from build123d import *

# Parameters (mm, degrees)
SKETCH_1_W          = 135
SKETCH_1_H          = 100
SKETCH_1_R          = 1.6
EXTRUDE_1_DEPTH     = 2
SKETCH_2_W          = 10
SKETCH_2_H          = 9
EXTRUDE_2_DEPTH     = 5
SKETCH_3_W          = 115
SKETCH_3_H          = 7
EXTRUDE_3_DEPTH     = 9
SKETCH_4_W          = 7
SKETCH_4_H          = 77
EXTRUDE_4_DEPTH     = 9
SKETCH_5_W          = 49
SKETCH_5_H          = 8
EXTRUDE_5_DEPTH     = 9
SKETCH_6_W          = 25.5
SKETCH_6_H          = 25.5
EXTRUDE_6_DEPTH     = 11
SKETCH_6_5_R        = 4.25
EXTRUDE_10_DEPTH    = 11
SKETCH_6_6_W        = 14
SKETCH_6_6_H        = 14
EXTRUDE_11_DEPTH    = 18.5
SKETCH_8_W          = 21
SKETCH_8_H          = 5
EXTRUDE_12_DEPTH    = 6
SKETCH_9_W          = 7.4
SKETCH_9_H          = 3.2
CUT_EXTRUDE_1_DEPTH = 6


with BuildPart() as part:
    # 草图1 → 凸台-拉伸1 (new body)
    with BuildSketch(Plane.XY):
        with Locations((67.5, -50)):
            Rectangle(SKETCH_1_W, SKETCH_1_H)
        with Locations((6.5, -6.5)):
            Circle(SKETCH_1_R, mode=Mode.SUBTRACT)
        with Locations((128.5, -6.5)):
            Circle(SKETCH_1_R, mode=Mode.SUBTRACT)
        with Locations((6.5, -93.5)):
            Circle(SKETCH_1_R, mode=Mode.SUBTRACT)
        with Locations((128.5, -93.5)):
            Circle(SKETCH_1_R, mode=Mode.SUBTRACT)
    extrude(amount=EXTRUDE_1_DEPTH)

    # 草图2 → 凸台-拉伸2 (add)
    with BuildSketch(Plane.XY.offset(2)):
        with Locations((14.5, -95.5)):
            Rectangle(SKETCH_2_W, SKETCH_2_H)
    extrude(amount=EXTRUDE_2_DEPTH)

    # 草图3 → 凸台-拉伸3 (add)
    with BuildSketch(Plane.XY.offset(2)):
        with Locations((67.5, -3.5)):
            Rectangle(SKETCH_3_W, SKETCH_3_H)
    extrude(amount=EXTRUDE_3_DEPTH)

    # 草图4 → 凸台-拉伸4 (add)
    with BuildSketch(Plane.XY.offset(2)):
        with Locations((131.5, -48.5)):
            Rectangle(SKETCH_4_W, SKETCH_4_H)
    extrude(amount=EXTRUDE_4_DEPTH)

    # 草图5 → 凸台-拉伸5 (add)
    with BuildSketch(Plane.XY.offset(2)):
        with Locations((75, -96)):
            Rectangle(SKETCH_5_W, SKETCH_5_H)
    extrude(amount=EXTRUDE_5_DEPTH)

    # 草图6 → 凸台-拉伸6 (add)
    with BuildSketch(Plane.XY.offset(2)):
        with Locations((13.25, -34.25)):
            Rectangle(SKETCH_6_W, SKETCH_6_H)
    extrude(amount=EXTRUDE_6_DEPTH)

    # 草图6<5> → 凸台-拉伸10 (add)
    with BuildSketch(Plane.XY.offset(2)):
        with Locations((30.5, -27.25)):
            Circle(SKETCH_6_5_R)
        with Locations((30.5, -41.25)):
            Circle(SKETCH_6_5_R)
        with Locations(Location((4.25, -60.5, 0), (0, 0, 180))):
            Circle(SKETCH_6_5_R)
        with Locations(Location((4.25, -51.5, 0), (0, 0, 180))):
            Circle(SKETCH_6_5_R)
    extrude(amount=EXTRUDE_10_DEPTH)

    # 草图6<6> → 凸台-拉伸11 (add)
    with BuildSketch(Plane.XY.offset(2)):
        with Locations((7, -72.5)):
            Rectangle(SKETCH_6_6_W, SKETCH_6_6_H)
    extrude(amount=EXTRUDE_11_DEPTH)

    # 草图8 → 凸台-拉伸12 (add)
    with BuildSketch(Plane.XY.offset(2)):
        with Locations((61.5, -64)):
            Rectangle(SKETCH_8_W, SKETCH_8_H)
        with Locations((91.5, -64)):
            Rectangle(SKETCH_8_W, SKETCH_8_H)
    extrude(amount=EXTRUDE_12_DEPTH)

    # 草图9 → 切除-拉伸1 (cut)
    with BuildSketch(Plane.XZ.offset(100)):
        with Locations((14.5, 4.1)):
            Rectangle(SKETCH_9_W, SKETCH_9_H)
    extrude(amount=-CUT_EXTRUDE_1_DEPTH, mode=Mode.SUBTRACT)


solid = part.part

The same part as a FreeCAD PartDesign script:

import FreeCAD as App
import Part
import Sketcher

V = App.Vector

doc = App.newDocument("Part")
body = doc.addObject("PartDesign::Body", "Body")

# Sketch on XY plane
sketch1 = body.newObject("Sketcher::SketchObject", "Sketch")
sketch1.AttachmentSupport = (doc.getObject("XY_Plane"), [""])
sketch1.MapMode = "FlatFace"
sketch1.addGeometry([
    Part.LineSegment(V(0, 0, 0), V(0, -100, 0)),  # 0
    Part.LineSegment(V(0, -100, 0), V(135, -100, 0)),  # 1
    Part.LineSegment(V(135, -100, 0), V(135, 0, 0)),  # 2
    Part.LineSegment(V(135, 0, 0), V(0, 0, 0)),  # 3
    Part.Circle(V(6.5, -93.5, 0), V(0, 0, 1), 1.6),  # 4
    Part.Circle(V(128.5, -93.5, 0), V(0, 0, 1), 1.6),  # 5
    Part.Circle(V(6.5, -6.5, 0), V(0, 0, 1), 1.6),  # 6
    Part.Circle(V(128.5, -6.5, 0), V(0, 0, 1), 1.6),  # 7
], False)
sketch1.addConstraint([
    Sketcher.Constraint("Coincident", 0, 2, 1, 1),
    Sketcher.Constraint("Coincident", 1, 2, 2, 1),
    Sketcher.Constraint("Coincident", 2, 2, 3, 1),
    Sketcher.Constraint("Coincident", 3, 2, 0, 1),
    Sketcher.Constraint("Vertical", 0),
    Sketcher.Constraint("Horizontal", 1),
    Sketcher.Constraint("Vertical", 2),
    Sketcher.Constraint("Horizontal", 3),
    Sketcher.Constraint("Coincident", 3, 2, -1, 1),
    Sketcher.Constraint("Equal", 4, 5),
    Sketcher.Constraint("Equal", 5, 6),
    Sketcher.Constraint("Equal", 6, 7),
    Sketcher.Constraint("Horizontal", 4, 3, 5, 3),
    Sketcher.Constraint("Horizontal", 6, 3, 7, 3),
    Sketcher.Constraint("Vertical", 4, 3, 6, 3),
    Sketcher.Constraint("Vertical", 5, 3, 7, 3),
    Sketcher.Constraint("Diameter", 4, 3.2),
    Sketcher.Constraint("DistanceX", 1, 1, 1, 2, 135.0),
    Sketcher.Constraint("DistanceY", 0, 2, 0, 1, 100.0),
    Sketcher.Constraint("DistanceX", 4, 3, 5, 3, 122.0),
    Sketcher.Constraint("DistanceY", 4, 3, 6, 3, 87.0),
    Sketcher.Constraint("DistanceX", -1, 1, 4, 3, 6.5),
    Sketcher.Constraint("DistanceY", 4, 3, -1, 1, 93.5),
])
pad1 = body.newObject("PartDesign::Pad", "Pad")
pad1.Profile = sketch1
pad1.Length = 2

# Sketch on XY plane
sketch2 = body.newObject("Sketcher::SketchObject", "Sketch001")
sketch2.AttachmentSupport = (doc.getObject("XY_Plane"), [""])
sketch2.MapMode = "FlatFace"
sketch2.AttachmentOffset = App.Placement(V(0, 0, 2), App.Rotation())
sketch2.addGeometry([
    Part.LineSegment(V(10, -91, 0), V(10, -100, 0)),
    Part.LineSegment(V(10, -100, 0), V(20, -100, 0)),
    Part.LineSegment(V(20, -100, 0), V(20, -91, 0)),
    Part.LineSegment(V(20, -91, 0), V(10, -91, 0)),
], False)
sketch2.addConstraint([
    Sketcher.Constraint("Coincident", 0, 2, 1, 1),
    Sketcher.Constraint("Coincident", 1, 2, 2, 1),
    Sketcher.Constraint("Coincident", 2, 2, 3, 1),
    Sketcher.Constraint("Coincident", 3, 2, 0, 1),
    Sketcher.Constraint("Vertical", 0),
    Sketcher.Constraint("Horizontal", 1),
    Sketcher.Constraint("Vertical", 2),
    Sketcher.Constraint("Horizontal", 3),
    Sketcher.Constraint("DistanceX", 1, 1, 1, 2, 10.0),
    Sketcher.Constraint("DistanceY", 0, 2, 0, 1, 9.0),
    Sketcher.Constraint("DistanceY", 0, 2, -1, 1, 100.0),
    Sketcher.Constraint("DistanceX", -1, 1, 0, 2, 9.5),
])
pad2 = body.newObject("PartDesign::Pad", "Pad001")
pad2.Profile = sketch2
pad2.Length = 5

# Sketch on XY plane
sketch3 = body.newObject("Sketcher::SketchObject", "Sketch002")
sketch3.AttachmentSupport = (doc.getObject("XY_Plane"), [""])
sketch3.MapMode = "FlatFace"
sketch3.AttachmentOffset = App.Placement(V(0, 0, 2), App.Rotation())
sketch3.addGeometry([
    Part.LineSegment(V(10, 0, 0), V(10, -7, 0)),
    Part.LineSegment(V(10, -7, 0), V(125, -7, 0)),
    Part.LineSegment(V(125, -7, 0), V(125, 0, 0)),
    Part.LineSegment(V(125, 0, 0), V(10, 0, 0)),
], False)
sketch3.addConstraint([
    Sketcher.Constraint("Coincident", 0, 2, 1, 1),
    Sketcher.Constraint("Coincident", 1, 2, 2, 1),
    Sketcher.Constraint("Coincident", 2, 2, 3, 1),
    Sketcher.Constraint("Coincident", 3, 2, 0, 1),
    Sketcher.Constraint("Vertical", 0),
    Sketcher.Constraint("Horizontal", 1),
    Sketcher.Constraint("Vertical", 2),
    Sketcher.Constraint("Horizontal", 3),
    Sketcher.Constraint("PointOnObject", 2, 2, -1),
    Sketcher.Constraint("DistanceX", 1, 1, 1, 2, 115.0),
    Sketcher.Constraint("DistanceY", 0, 2, 0, 1, 7.0),
    Sketcher.Constraint("DistanceX", -1, 1, 0, 2, 10.0),
])
pad3 = body.newObject("PartDesign::Pad", "Pad002")
pad3.Profile = sketch3
pad3.Length = 9

# Sketch on XY plane
sketch4 = body.newObject("Sketcher::SketchObject", "Sketch003")
sketch4.AttachmentSupport = (doc.getObject("XY_Plane"), [""])
sketch4.MapMode = "FlatFace"
sketch4.AttachmentOffset = App.Placement(V(0, 0, 2), App.Rotation())
sketch4.addGeometry([
    Part.LineSegment(V(128, -10, 0), V(128, -87, 0)),
    Part.LineSegment(V(128, -87, 0), V(135, -87, 0)),
    Part.LineSegment(V(135, -87, 0), V(135, -10, 0)),
    Part.LineSegment(V(135, -10, 0), V(128, -10, 0)),
], False)
sketch4.addConstraint([
    Sketcher.Constraint("Coincident", 0, 2, 1, 1),
    Sketcher.Constraint("Coincident", 1, 2, 2, 1),
    Sketcher.Constraint("Coincident", 2, 2, 3, 1),
    Sketcher.Constraint("Coincident", 3, 2, 0, 1),
    Sketcher.Constraint("Vertical", 0),
    Sketcher.Constraint("Horizontal", 1),
    Sketcher.Constraint("Vertical", 2),
    Sketcher.Constraint("Horizontal", 3),
    Sketcher.Constraint("DistanceX", 1, 1, 1, 2, 7.0),
    Sketcher.Constraint("DistanceY", 0, 2, 0, 1, 77.0),
    Sketcher.Constraint("DistanceX", -1, 1, 0, 2, 128.0),
    Sketcher.Constraint("DistanceY", 0, 2, -1, 1, 87.0),
])
pad4 = body.newObject("PartDesign::Pad", "Pad003")
pad4.Profile = sketch4
pad4.Length = 9

# Sketch on XY plane
sketch5 = body.newObject("Sketcher::SketchObject", "Sketch004")
sketch5.AttachmentSupport = (doc.getObject("XY_Plane"), [""])
sketch5.MapMode = "FlatFace"
sketch5.AttachmentOffset = App.Placement(V(0, 0, 2), App.Rotation())
sketch5.addGeometry([
    Part.LineSegment(V(50, -92, 0), V(50, -100, 0)),
    Part.LineSegment(V(50, -100, 0), V(100, -100, 0)),
    Part.LineSegment(V(100, -100, 0), V(100, -92, 0)),
    Part.LineSegment(V(100, -92, 0), V(50, -92, 0)),
], False)
sketch5.addConstraint([
    Sketcher.Constraint("Coincident", 0, 2, 1, 1),
    Sketcher.Constraint("Coincident", 1, 2, 2, 1),
    Sketcher.Constraint("Coincident", 2, 2, 3, 1),
    Sketcher.Constraint("Coincident", 3, 2, 0, 1),
    Sketcher.Constraint("Vertical", 0),
    Sketcher.Constraint("Horizontal", 1),
    Sketcher.Constraint("Vertical", 2),
    Sketcher.Constraint("Horizontal", 3),
    Sketcher.Constraint("DistanceX", 1, 1, 1, 2, 49.0),
    Sketcher.Constraint("DistanceY", 0, 2, 0, 1, 8.0),
    Sketcher.Constraint("DistanceY", 0, 2, -1, 1, 100.0),
    Sketcher.Constraint("DistanceX", -1, 1, 0, 2, 50.5),
])
pad5 = body.newObject("PartDesign::Pad", "Pad004")
pad5.Profile = sketch5
pad5.Length = 9

# Sketch on XY plane
sketch6 = body.newObject("Sketcher::SketchObject", "Sketch005")
sketch6.AttachmentSupport = (doc.getObject("XY_Plane"), [""])
sketch6.MapMode = "FlatFace"
sketch6.AttachmentOffset = App.Placement(V(0, 0, 2), App.Rotation())
sketch6.addGeometry([
    Part.LineSegment(V(0, -22, 0), V(0, -47, 0)),
    Part.LineSegment(V(0, -47, 0), V(26, -47, 0)),
    Part.LineSegment(V(26, -47, 0), V(26, -22, 0)),
    Part.LineSegment(V(26, -22, 0), V(0, -22, 0)),
], False)
sketch6.addConstraint([
    Sketcher.Constraint("Coincident", 0, 2, 1, 1),
    Sketcher.Constraint("Coincident", 1, 2, 2, 1),
    Sketcher.Constraint("Coincident", 2, 2, 3, 1),
    Sketcher.Constraint("Coincident", 3, 2, 0, 1),
    Sketcher.Constraint("Vertical", 0),
    Sketcher.Constraint("Horizontal", 1),
    Sketcher.Constraint("Vertical", 2),
    Sketcher.Constraint("Horizontal", 3),
    Sketcher.Constraint("Equal", 3, 0),
    Sketcher.Constraint("DistanceX", 1, 1, 1, 2, 25.5),
    Sketcher.Constraint("DistanceY", 0, 2, -1, 1, 47.0),
    Sketcher.Constraint("DistanceX", -1, 1, 1, 2, 26.0),
])
pad6 = body.newObject("PartDesign::Pad", "Pad005")
pad6.Profile = sketch6
pad6.Length = 11

# Sketch on XY plane
sketch7 = body.newObject("Sketcher::SketchObject", "Sketch006")
sketch7.AttachmentSupport = (doc.getObject("XY_Plane"), [""])
sketch7.MapMode = "FlatFace"
sketch7.AttachmentOffset = App.Placement(V(0, 0, 2), App.Rotation())
sketch7.addGeometry([
    Part.Circle(V(30.5, -27.2, 0), V(0, 0, 1), 4.2),
    Part.Circle(V(30.5, -41.2, 0), V(0, 0, 1), 4.2),
    Part.Circle(V(4.2, -60.5, 0), V(0, 0, 1), 4.2),
    Part.Circle(V(4.2, -51.5, 0), V(0, 0, 1), 4.2),
], False)
sketch7.addConstraint([
    Sketcher.Constraint("Equal", 0, 1),
    Sketcher.Constraint("Equal", 1, 2),
    Sketcher.Constraint("Equal", 2, 3),
    Sketcher.Constraint("Vertical", 0, 3, 1, 3),
    Sketcher.Constraint("Vertical", 2, 3, 3, 3),
    Sketcher.Constraint("Diameter", 0, 8.5),
    Sketcher.Constraint("DistanceY", 1, 3, 0, 3, 14.0),
    Sketcher.Constraint("DistanceY", 2, 3, 3, 3, 9.0),
    Sketcher.Constraint("DistanceX", -1, 1, 0, 3, 30.5),
    Sketcher.Constraint("DistanceY", 2, 3, -1, 1, 60.5),
    Sketcher.Constraint("DistanceY", 0, 3, -1, 1, 27.25),
    Sketcher.Constraint("DistanceX", -1, 1, 2, 3, 4.25),
])
pad7 = body.newObject("PartDesign::Pad", "Pad006")
pad7.Profile = sketch7
pad7.Length = 11

# Sketch on XY plane
sketch8 = body.newObject("Sketcher::SketchObject", "Sketch007")
sketch8.AttachmentSupport = (doc.getObject("XY_Plane"), [""])
sketch8.MapMode = "FlatFace"
sketch8.AttachmentOffset = App.Placement(V(0, 0, 2), App.Rotation())
sketch8.addGeometry([
    Part.LineSegment(V(0, -66, 0), V(0, -80, 0)),
    Part.LineSegment(V(0, -80, 0), V(14, -80, 0)),
    Part.LineSegment(V(14, -80, 0), V(14, -66, 0)),
    Part.LineSegment(V(14, -66, 0), V(0, -66, 0)),
], False)
sketch8.addConstraint([
    Sketcher.Constraint("Coincident", 0, 2, 1, 1),
    Sketcher.Constraint("Coincident", 1, 2, 2, 1),
    Sketcher.Constraint("Coincident", 2, 2, 3, 1),
    Sketcher.Constraint("Coincident", 3, 2, 0, 1),
    Sketcher.Constraint("Vertical", 0),
    Sketcher.Constraint("Horizontal", 1),
    Sketcher.Constraint("Vertical", 2),
    Sketcher.Constraint("Horizontal", 3),
    Sketcher.Constraint("PointOnObject", 0, 2, -2),
    Sketcher.Constraint("Equal", 3, 0),
    Sketcher.Constraint("DistanceX", 1, 1, 1, 2, 14.0),
    Sketcher.Constraint("DistanceY", 0, 2, -1, 1, 79.5),
])
pad8 = body.newObject("PartDesign::Pad", "Pad007")
pad8.Profile = sketch8
pad8.Length = 18.5

# Sketch on XY plane
sketch9 = body.newObject("Sketcher::SketchObject", "Sketch008")
sketch9.AttachmentSupport = (doc.getObject("XY_Plane"), [""])
sketch9.MapMode = "FlatFace"
sketch9.AttachmentOffset = App.Placement(V(0, 0, 2), App.Rotation())
sketch9.addGeometry([
    Part.LineSegment(V(51, -62, 0), V(51, -66, 0)),  # 0
    Part.LineSegment(V(51, -66, 0), V(72, -66, 0)),  # 1
    Part.LineSegment(V(72, -66, 0), V(72, -62, 0)),  # 2
    Part.LineSegment(V(72, -62, 0), V(51, -62, 0)),  # 3
    Part.LineSegment(V(81, -62, 0), V(81, -66, 0)),  # 4
    Part.LineSegment(V(81, -66, 0), V(102, -66, 0)),  # 5
    Part.LineSegment(V(102, -66, 0), V(102, -62, 0)),  # 6
    Part.LineSegment(V(102, -62, 0), V(81, -62, 0)),  # 7
], False)
sketch9.addConstraint([
    Sketcher.Constraint("Coincident", 0, 2, 1, 1),
    Sketcher.Constraint("Coincident", 1, 2, 2, 1),
    Sketcher.Constraint("Coincident", 2, 2, 3, 1),
    Sketcher.Constraint("Coincident", 3, 2, 0, 1),
    Sketcher.Constraint("Coincident", 4, 2, 5, 1),
    Sketcher.Constraint("Coincident", 5, 2, 6, 1),
    Sketcher.Constraint("Coincident", 6, 2, 7, 1),
    Sketcher.Constraint("Coincident", 7, 2, 4, 1),
    Sketcher.Constraint("Vertical", 0),
    Sketcher.Constraint("Horizontal", 1),
    Sketcher.Constraint("Vertical", 2),
    Sketcher.Constraint("Horizontal", 3),
    Sketcher.Constraint("Vertical", 4),
    Sketcher.Constraint("Horizontal", 5),
    Sketcher.Constraint("Vertical", 6),
    Sketcher.Constraint("Horizontal", 7),
    Sketcher.Constraint("Horizontal", 1, 2, 4, 2),
    Sketcher.Constraint("Horizontal", 3, 2, 6, 2),
    Sketcher.Constraint("Equal", 3, 5),
    Sketcher.Constraint("DistanceX", 1, 1, 1, 2, 21.0),
    Sketcher.Constraint("DistanceY", 0, 2, 0, 1, 5.0),
    Sketcher.Constraint("DistanceX", -1, 1, 0, 2, 51.0),
    Sketcher.Constraint("DistanceX", -1, 1, 4, 2, 81.0),
    Sketcher.Constraint("DistanceY", 0, 2, -1, 1, 66.5),
])
pad9 = body.newObject("PartDesign::Pad", "Pad008")
pad9.Profile = sketch9
pad9.Length = 6

# Sketch on XZ plane
sketch10 = body.newObject("Sketcher::SketchObject", "Sketch009")
sketch10.AttachmentSupport = (doc.getObject("XZ_Plane"), [""])
sketch10.MapMode = "FlatFace"
sketch10.AttachmentOffset = App.Placement(V(0, 0, 100), App.Rotation())
sketch10.addGeometry([
    Part.LineSegment(V(10.8, 5.7, 0), V(10.8, 2.5, 0)),
    Part.LineSegment(V(10.8, 2.5, 0), V(18.2, 2.5, 0)),
    Part.LineSegment(V(18.2, 2.5, 0), V(18.2, 5.7, 0)),
    Part.LineSegment(V(18.2, 5.7, 0), V(10.8, 5.7, 0)),
], False)
sketch10.addConstraint([
    Sketcher.Constraint("Coincident", 0, 2, 1, 1),
    Sketcher.Constraint("Coincident", 1, 2, 2, 1),
    Sketcher.Constraint("Coincident", 2, 2, 3, 1),
    Sketcher.Constraint("Coincident", 3, 2, 0, 1),
    Sketcher.Constraint("Vertical", 0),
    Sketcher.Constraint("Horizontal", 1),
    Sketcher.Constraint("Vertical", 2),
    Sketcher.Constraint("Horizontal", 3),
    Sketcher.Constraint("DistanceX", 1, 1, 1, 2, 7.4),
    Sketcher.Constraint("DistanceY", 0, 2, 0, 1, 3.2),
    Sketcher.Constraint("DistanceX", -1, 1, 0, 2, 10.8),
    Sketcher.Constraint("DistanceY", -1, 1, 0, 2, 2.5),
])
pocket1 = body.newObject("PartDesign::Pocket", "Pocket")
pocket1.Profile = sketch10
pocket1.Length = 6

doc.recompute()
